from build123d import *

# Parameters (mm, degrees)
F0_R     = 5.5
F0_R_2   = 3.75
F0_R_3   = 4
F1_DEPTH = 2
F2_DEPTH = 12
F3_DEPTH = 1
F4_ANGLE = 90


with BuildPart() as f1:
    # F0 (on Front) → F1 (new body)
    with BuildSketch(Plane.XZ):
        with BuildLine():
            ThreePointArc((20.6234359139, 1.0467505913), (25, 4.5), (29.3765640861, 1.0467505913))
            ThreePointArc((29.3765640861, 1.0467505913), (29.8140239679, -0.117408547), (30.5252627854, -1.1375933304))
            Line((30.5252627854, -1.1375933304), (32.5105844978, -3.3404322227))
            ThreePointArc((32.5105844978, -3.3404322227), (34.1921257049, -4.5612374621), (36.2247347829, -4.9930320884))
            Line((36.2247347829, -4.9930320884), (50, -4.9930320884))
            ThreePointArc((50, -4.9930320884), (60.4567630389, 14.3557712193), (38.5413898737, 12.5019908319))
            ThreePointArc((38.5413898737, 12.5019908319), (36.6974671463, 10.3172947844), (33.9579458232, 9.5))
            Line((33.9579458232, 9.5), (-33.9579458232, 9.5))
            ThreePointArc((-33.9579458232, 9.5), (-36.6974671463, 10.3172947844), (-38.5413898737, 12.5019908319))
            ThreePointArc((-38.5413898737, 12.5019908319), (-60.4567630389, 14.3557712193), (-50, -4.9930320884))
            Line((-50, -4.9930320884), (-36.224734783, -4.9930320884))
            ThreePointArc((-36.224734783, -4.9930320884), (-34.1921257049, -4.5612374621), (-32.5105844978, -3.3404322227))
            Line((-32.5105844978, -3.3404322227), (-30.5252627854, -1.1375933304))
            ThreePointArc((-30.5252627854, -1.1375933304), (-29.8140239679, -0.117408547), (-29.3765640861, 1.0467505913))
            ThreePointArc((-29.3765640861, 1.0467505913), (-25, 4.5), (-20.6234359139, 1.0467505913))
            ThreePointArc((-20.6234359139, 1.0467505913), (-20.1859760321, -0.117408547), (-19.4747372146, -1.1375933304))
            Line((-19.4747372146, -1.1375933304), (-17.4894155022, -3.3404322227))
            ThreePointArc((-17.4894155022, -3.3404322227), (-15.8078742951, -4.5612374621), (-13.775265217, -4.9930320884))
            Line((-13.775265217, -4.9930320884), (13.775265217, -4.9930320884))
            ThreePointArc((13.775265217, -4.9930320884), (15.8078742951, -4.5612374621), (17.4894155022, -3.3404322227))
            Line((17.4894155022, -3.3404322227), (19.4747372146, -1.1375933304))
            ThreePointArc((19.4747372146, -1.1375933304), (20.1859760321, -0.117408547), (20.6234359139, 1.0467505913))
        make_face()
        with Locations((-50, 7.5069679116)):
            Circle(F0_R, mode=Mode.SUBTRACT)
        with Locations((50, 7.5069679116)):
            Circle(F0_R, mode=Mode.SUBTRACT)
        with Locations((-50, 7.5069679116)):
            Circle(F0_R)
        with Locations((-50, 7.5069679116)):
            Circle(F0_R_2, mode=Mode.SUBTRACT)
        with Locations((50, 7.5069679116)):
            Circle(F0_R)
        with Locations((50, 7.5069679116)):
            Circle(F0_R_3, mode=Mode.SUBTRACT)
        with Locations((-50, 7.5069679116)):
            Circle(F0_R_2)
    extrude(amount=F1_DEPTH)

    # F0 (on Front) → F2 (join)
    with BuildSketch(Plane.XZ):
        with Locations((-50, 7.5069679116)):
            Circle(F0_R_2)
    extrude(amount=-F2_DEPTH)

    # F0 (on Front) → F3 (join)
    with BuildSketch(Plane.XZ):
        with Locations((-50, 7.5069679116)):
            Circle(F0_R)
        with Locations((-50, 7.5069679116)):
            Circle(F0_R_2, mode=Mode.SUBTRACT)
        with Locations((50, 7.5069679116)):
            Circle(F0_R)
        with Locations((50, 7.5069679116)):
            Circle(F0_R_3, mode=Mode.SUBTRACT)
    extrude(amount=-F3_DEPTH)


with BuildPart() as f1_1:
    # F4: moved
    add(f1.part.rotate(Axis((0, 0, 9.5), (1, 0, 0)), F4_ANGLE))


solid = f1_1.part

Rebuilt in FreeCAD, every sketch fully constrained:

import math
import FreeCAD as App
import Part
import Sketcher
from FreeCAD import Vector
Q = App.Units.Quantity

doc = App.newDocument("Part")
body = doc.addObject("PartDesign::Body", "Body")

# Sketch on XZ plane
sketch1 = doc.addObject("Sketcher::SketchObject", "Sketch")
body.addObject(sketch1)
sketch1.AttachmentSupport = (doc.XZ_Plane, [""])
sketch1.MapMode = "FlatFace"
sketch1.addGeometry(Part.ArcOfCircle(Part.Circle(Vector(25, 0, 0), Vector(0, 0, 1), 4.5), math.radians(13), math.radians(167)), False)
sketch1.addGeometry(Part.ArcOfCircle(Part.Circle(Vector(34.2, 2.2, 0), Vector(0, 0, 1), 5), math.radians(-167), math.radians(-138)), False)
sketch1.addGeometry(Part.LineSegment(Vector(30.5, -1.1, 0), Vector(32.5, -3.3, 0)), False)
sketch1.addGeometry(Part.ArcOfCircle(Part.Circle(Vector(36.2, 0, 0), Vector(0, 0, 1), 5), math.radians(-138), math.radians(-90)), False)
sketch1.addGeometry(Part.LineSegment(Vector(36.2, -5, 0), Vector(50, -5, 0)), False)
sketch1.addGeometry(Part.ArcOfCircle(Part.Circle(Vector(50, 7.5, 0), Vector(0, 0, 1), 12.5), math.radians(-90), math.radians(156)), False)
sketch1.addGeometry(Part.ArcOfCircle(Part.Circle(Vector(34, 14.5, 0), Vector(0, 0, 1), 5), math.radians(-90), math.radians(-24)), False)
sketch1.addGeometry(Part.LineSegment(Vector(34, 9.5, 0), Vector(-34, 9.5, 0)), False)
sketch1.addGeometry(Part.ArcOfCircle(Part.Circle(Vector(-34, 14.5, 0), Vector(0, 0, 1), 5), math.radians(-156), math.radians(-90)), False)
sketch1.addGeometry(Part.ArcOfCircle(Part.Circle(Vector(-50, 7.5, 0), Vector(0, 0, 1), 12.5), math.radians(24), math.radians(270)), False)
sketch1.addGeometry(Part.LineSegment(Vector(-50, -5, 0), Vector(-36.2, -5, 0)), False)
sketch1.addGeometry(Part.ArcOfCircle(Part.Circle(Vector(-36.2, 0, 0), Vector(0, 0, 1), 5), math.radians(-90), math.radians(-42)), False)
sketch1.addGeometry(Part.LineSegment(Vector(-32.5, -3.3, 0), Vector(-30.5, -1.1, 0)), False)
sketch1.addGeometry(Part.ArcOfCircle(Part.Circle(Vector(-34.2, 2.2, 0), Vector(0, 0, 1), 5), math.radians(-42), math.radians(-13)), False)
sketch1.addGeometry(Part.ArcOfCircle(Part.Circle(Vector(-25, 0, 0), Vector(0, 0, 1), 4.5), math.radians(13), math.radians(167)), False)
sketch1.addGeometry(Part.ArcOfCircle(Part.Circle(Vector(-15.8, 2.2, 0), Vector(0, 0, 1), 5), math.radians(-167), math.radians(-138)), False)
sketch1.addGeometry(Part.LineSegment(Vector(-19.5, -1.1, 0), Vector(-17.5, -3.3, 0)), False)
sketch1.addGeometry(Part.ArcOfCircle(Part.Circle(Vector(-13.8, 0, 0), Vector(0, 0, 1), 5), math.radians(-138), math.radians(-90)), False)
sketch1.addGeometry(Part.LineSegment(Vector(-13.8, -5, 0), Vector(13.8, -5, 0)), False)
sketch1.addGeometry(Part.ArcOfCircle(Part.Circle(Vector(13.8, 0, 0), Vector(0, 0, 1), 5), math.radians(-90), math.radians(-42)), False)
sketch1.addGeometry(Part.LineSegment(Vector(17.5, -3.3, 0), Vector(19.5, -1.1, 0)), False)
sketch1.addGeometry(Part.ArcOfCircle(Part.Circle(Vector(15.8, 2.2, 0), Vector(0, 0, 1), 5), math.radians(-42), math.radians(-13)), False)
sketch1.addGeometry(Part.Circle(Vector(50, 7.5, 0), Vector(0, 0, 1), 4), False)
sketch1.addConstraint(Sketcher.Constraint("Tangent", 0, 1, 1, 1))
sketch1.addConstraint(Sketcher.Constraint("Tangent", 1, 2, 2, 1))
sketch1.addConstraint(Sketcher.Constraint("Tangent", 2, 2, 3, 1))
sketch1.addConstraint(Sketcher.Constraint("Tangent", 3, 2, 4, 1))
sketch1.addConstraint(Sketcher.Constraint("Tangent", 4, 2, 5, 1))
sketch1.addConstraint(Sketcher.Constraint("Tangent", 5, 2, 6, 2))
sketch1.addConstraint(Sketcher.Constraint("Tangent", 6, 1, 7, 1))
sketch1.addConstraint(Sketcher.Constraint("Tangent", 7, 2, 8, 2))
sketch1.addConstraint(Sketcher.Constraint("Tangent", 8, 1, 9, 1))
sketch1.addConstraint(Sketcher.Constraint("Tangent", 9, 2, 10, 1))
sketch1.addConstraint(Sketcher.Constraint("Tangent", 10, 2, 11, 1))
sketch1.addConstraint(Sketcher.Constraint("Tangent", 11, 2, 12, 1))
sketch1.addConstraint(Sketcher.Constraint("Tangent", 12, 2, 13, 1))
sketch1.addConstraint(Sketcher.Constraint("Tangent", 13, 2, 14, 2))
sketch1.addConstraint(Sketcher.Constraint("Tangent", 14, 1, 15, 1))
sketch1.addConstraint(Sketcher.Constraint("Tangent", 15, 2, 16, 1))
sketch1.addConstraint(Sketcher.Constraint("Tangent", 16, 2, 17, 1))
sketch1.addConstraint(Sketcher.Constraint("Tangent", 17, 2, 18, 1))
sketch1.addConstraint(Sketcher.Constraint("Tangent", 18, 2, 19, 1))
sketch1.addConstraint(Sketcher.Constraint("Tangent", 19, 2, 20, 1))
sketch1.addConstraint(Sketcher.Constraint("Tangent", 20, 2, 21, 1))
sketch1.addConstraint(Sketcher.Constraint("Tangent", 21, 2, 0, 2))
sketch1.addConstraint(Sketcher.Constraint("Horizontal", 4))
sketch1.addConstraint(Sketcher.Constraint("Horizontal", 7))
sketch1.addConstraint(Sketcher.Constraint("Horizontal", 10))
sketch1.addConstraint(Sketcher.Constraint("Horizontal", 18))
sketch1.addConstraint(Sketcher.Constraint("Coincident", 22, 3, 5, 3))
sketch1.addConstraint(Sketcher.Constraint("Equal", 1, 3))
sketch1.addConstraint(Sketcher.Constraint("Equal", 3, 6))
sketch1.addConstraint(Sketcher.Constraint("Equal", 6, 8))
sketch1.addConstraint(Sketcher.Constraint("Equal", 5, 9))
sketch1.addConstraint(Sketcher.Constraint("Equal", 8, 11))
sketch1.addConstraint(Sketcher.Constraint("Equal", 11, 13))
sketch1.addConstraint(Sketcher.Constraint("Equal", 0, 14))
sketch1.addConstraint(Sketcher.Constraint("Equal", 13, 15))
sketch1.addConstraint(Sketcher.Constraint("Equal", 15, 17))
sketch1.addConstraint(Sketcher.Constraint("Equal", 17, 19))
sketch1.addConstraint(Sketcher.Constraint("Equal", 19, 21))
sketch1.addConstraint(Sketcher.Constraint("Symmetric", 0, 3, 14, 3, -1, 1))
sketch1.addConstraint(Sketcher.Constraint("Symmetric", 5, 3, 9, 3, -2))
sketch1.addConstraint(Sketcher.Constraint("Symmetric", 1, 3, 13, 3, -2))
sketch1.addConstraint(Sketcher.Constraint("Symmetric", 16, 2, 19, 2, -2))
sketch1.addConstraint(Sketcher.Constraint("Parallel", 2, 16))
sketch1.addConstraint(Sketcher.Constraint("Parallel", 12, 20))
sketch1.addConstraint(Sketcher.Constraint("Horizontal", 13, 3, 15, 3))
sketch1.addConstraint(Sketcher.Constraint("Horizontal", 11, 3, 17, 3))
sketch1.addConstraint(Sketcher.Constraint("Diameter", 22, Q("8 mm")))
sketch1.addConstraint(Sketcher.Constraint("Radius", 1, Q("5 mm")))
sketch1.addConstraint(Sketcher.Constraint("Radius", 0, Q("4.5 mm")))
sketch1.addConstraint(Sketcher.Constraint("Radius", 5, Q("12.5 mm")))
sketch1.addConstraint(Sketcher.Constraint("DistanceX", -1, 1, 0, 3, Q("25 mm")))
sketch1.addConstraint(Sketcher.Constraint("DistanceX", -1, 1, 5, 3, Q("50 mm")))
sketch1.addConstraint(Sketcher.Constraint("DistanceY", -1, 1, 6, 3, Q("14.5 mm")))
sketch1.addConstraint(Sketcher.Constraint("DistanceX", 7, 2, 7, 1, Q("67.915892 mm")))
sketch1.addConstraint(Sketcher.Constraint("DistanceX", 18, 1, 18, 2, Q("27.55053 mm")))
sketch1.addConstraint(Sketcher.Constraint("DistanceX", 0, 1, 1, 2, Q("1.148699 mm")))
pad1 = doc.addObject("PartDesign::Pad", "Pad")
body.addObject(pad1)
pad1.Profile = sketch1
pad1.Length = 2

# Sketch on XZ plane
sketch2 = doc.addObject("Sketcher::SketchObject", "Sketch001")
body.addObject(sketch2)
sketch2.AttachmentSupport = (doc.XZ_Plane, [""])
sketch2.MapMode = "FlatFace"
sketch2.addGeometry(Part.Circle(Vector(-50, 7.5, 0), Vector(0, 0, 1), 3.8), False)
sketch2.addConstraint(Sketcher.Constraint("Diameter", 0, Q("7.5 mm")))
sketch2.addConstraint(Sketcher.Constraint("DistanceX", 0, 3, -1, 1, Q("50 mm")))
sketch2.addConstraint(Sketcher.Constraint("DistanceY", -1, 1, 0, 3, Q("7.506968 mm")))
pad2 = doc.addObject("PartDesign::Pad", "Pad001")
body.addObject(pad2)
pad2.Profile = sketch2
pad2.Length = 12
pad2.Reversed = True

# Sketch on XZ plane
sketch3 = doc.addObject("Sketcher::SketchObject", "Sketch002")
body.addObject(sketch3)
sketch3.AttachmentSupport = (doc.XZ_Plane, [""])
sketch3.MapMode = "FlatFace"
sketch3.addGeometry(Part.Circle(Vector(-50, 7.5, 0), Vector(0, 0, 1), 5.5), False)
sketch3.addGeometry(Part.Circle(Vector(-50, 7.5, 0), Vector(0, 0, 1), 3.8), False)
sketch3.addGeometry(Part.Circle(Vector(50, 7.5, 0), Vector(0, 0, 1), 5.5), False)
sketch3.addGeometry(Part.Circle(Vector(50, 7.5, 0), Vector(0, 0, 1), 4), False)
sketch3.addConstraint(Sketcher.Constraint("Coincident", 1, 3, 0, 3))
sketch3.addConstraint(Sketcher.Constraint("Coincident", 3, 3, 2, 3))
sketch3.addConstraint(Sketcher.Constraint("Equal", 0, 2))
sketch3.addConstraint(Sketcher.Constraint("Symmetric", 0, 3, 2, 3, -2))
sketch3.addConstraint(Sketcher.Constraint("Diameter", 0, Q("11 mm")))
sketch3.addConstraint(Sketcher.Constraint("Diameter", 3, Q("8 mm")))
sketch3.addConstraint(Sketcher.Constraint("Diameter", 1, Q("7.5 mm")))
sketch3.addConstraint(Sketcher.Constraint("DistanceX", 0, 3, -1, 1, Q("50 mm")))
sketch3.addConstraint(Sketcher.Constraint("DistanceY", -1, 1, 0, 3, Q("7.506968 mm")))
pad3 = doc.addObject("PartDesign::Pad", "Pad002")
body.addObject(pad3)
pad3.Profile = sketch3
pad3.Length = 1
pad3.Reversed = True
body2 = doc.addObject("PartDesign::Body", "Body001")
doc.recompute()

body.Placement = App.Placement(Vector(0, 9.5, 9.5), App.Rotation(Vector(1, 0, 0), 90))
boolean = doc.addObject("PartDesign::Boolean", "Boolean")
body2.addObject(boolean)
boolean.Type = "Fuse"
boolean.addObjects([body])

doc.recompute()
